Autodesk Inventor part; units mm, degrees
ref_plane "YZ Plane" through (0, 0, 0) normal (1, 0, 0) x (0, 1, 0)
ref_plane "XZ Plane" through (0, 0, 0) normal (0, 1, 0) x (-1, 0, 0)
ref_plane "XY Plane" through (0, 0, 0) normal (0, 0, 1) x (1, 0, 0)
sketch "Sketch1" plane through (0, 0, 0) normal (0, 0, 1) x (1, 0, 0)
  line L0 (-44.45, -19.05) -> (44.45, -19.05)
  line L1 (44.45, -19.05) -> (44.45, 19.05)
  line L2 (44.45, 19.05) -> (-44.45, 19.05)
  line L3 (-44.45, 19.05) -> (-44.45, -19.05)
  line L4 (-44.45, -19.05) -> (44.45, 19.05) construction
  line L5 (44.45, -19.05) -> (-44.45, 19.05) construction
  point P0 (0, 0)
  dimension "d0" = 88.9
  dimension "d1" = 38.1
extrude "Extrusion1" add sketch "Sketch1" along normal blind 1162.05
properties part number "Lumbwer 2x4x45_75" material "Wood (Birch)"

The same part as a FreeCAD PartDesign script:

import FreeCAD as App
import Part
import Sketcher
Q = App.Units.Quantity

doc = App.newDocument("Part")
body = doc.addObject("PartDesign::Body", "Body")

# Sketch on XY plane
sketch1 = body.newObject("Sketcher::SketchObject", "Sketch")
sketch1.AttachmentSupport = (doc.getObject("XY_Plane"), [""])
sketch1.MapMode = "FlatFace"
sketch1.addGeometry([
    Part.LineSegment(App.Vector(-44, 19, 0), App.Vector(-44, -19, 0)),
    Part.LineSegment(App.Vector(-44, -19, 0), App.Vector(44, -19, 0)),
    Part.LineSegment(App.Vector(44, -19, 0), App.Vector(44, 19, 0)),
    Part.LineSegment(App.Vector(44, 19, 0), App.Vector(-44, 19, 0)),
], False)
sketch1.addConstraint([
    Sketcher.Constraint("Coincident", 0, 2, 1, 1),
    Sketcher.Constraint("Coincident", 1, 2, 2, 1),
    Sketcher.Constraint("Coincident", 2, 2, 3, 1),
    Sketcher.Constraint("Coincident", 3, 2, 0, 1),
    Sketcher.Constraint("Vertical", 0),
    Sketcher.Constraint("Horizontal", 1),
    Sketcher.Constraint("Vertical", 2),
    Sketcher.Constraint("Horizontal", 3),
    Sketcher.Constraint("Symmetric", 0, 2, 2, 2, -1, 1),
    Sketcher.Constraint("DistanceX", 1, 1, 1, 2, Q("3.5 in")),
    Sketcher.Constraint("DistanceY", 0, 2, 0, 1, Q("1.5 in")),
])
pad1 = body.newObject("PartDesign::Pad", "Pad")
pad1.Profile = sketch1
pad1.Length = Q("45.75 in")

doc.recompute()
